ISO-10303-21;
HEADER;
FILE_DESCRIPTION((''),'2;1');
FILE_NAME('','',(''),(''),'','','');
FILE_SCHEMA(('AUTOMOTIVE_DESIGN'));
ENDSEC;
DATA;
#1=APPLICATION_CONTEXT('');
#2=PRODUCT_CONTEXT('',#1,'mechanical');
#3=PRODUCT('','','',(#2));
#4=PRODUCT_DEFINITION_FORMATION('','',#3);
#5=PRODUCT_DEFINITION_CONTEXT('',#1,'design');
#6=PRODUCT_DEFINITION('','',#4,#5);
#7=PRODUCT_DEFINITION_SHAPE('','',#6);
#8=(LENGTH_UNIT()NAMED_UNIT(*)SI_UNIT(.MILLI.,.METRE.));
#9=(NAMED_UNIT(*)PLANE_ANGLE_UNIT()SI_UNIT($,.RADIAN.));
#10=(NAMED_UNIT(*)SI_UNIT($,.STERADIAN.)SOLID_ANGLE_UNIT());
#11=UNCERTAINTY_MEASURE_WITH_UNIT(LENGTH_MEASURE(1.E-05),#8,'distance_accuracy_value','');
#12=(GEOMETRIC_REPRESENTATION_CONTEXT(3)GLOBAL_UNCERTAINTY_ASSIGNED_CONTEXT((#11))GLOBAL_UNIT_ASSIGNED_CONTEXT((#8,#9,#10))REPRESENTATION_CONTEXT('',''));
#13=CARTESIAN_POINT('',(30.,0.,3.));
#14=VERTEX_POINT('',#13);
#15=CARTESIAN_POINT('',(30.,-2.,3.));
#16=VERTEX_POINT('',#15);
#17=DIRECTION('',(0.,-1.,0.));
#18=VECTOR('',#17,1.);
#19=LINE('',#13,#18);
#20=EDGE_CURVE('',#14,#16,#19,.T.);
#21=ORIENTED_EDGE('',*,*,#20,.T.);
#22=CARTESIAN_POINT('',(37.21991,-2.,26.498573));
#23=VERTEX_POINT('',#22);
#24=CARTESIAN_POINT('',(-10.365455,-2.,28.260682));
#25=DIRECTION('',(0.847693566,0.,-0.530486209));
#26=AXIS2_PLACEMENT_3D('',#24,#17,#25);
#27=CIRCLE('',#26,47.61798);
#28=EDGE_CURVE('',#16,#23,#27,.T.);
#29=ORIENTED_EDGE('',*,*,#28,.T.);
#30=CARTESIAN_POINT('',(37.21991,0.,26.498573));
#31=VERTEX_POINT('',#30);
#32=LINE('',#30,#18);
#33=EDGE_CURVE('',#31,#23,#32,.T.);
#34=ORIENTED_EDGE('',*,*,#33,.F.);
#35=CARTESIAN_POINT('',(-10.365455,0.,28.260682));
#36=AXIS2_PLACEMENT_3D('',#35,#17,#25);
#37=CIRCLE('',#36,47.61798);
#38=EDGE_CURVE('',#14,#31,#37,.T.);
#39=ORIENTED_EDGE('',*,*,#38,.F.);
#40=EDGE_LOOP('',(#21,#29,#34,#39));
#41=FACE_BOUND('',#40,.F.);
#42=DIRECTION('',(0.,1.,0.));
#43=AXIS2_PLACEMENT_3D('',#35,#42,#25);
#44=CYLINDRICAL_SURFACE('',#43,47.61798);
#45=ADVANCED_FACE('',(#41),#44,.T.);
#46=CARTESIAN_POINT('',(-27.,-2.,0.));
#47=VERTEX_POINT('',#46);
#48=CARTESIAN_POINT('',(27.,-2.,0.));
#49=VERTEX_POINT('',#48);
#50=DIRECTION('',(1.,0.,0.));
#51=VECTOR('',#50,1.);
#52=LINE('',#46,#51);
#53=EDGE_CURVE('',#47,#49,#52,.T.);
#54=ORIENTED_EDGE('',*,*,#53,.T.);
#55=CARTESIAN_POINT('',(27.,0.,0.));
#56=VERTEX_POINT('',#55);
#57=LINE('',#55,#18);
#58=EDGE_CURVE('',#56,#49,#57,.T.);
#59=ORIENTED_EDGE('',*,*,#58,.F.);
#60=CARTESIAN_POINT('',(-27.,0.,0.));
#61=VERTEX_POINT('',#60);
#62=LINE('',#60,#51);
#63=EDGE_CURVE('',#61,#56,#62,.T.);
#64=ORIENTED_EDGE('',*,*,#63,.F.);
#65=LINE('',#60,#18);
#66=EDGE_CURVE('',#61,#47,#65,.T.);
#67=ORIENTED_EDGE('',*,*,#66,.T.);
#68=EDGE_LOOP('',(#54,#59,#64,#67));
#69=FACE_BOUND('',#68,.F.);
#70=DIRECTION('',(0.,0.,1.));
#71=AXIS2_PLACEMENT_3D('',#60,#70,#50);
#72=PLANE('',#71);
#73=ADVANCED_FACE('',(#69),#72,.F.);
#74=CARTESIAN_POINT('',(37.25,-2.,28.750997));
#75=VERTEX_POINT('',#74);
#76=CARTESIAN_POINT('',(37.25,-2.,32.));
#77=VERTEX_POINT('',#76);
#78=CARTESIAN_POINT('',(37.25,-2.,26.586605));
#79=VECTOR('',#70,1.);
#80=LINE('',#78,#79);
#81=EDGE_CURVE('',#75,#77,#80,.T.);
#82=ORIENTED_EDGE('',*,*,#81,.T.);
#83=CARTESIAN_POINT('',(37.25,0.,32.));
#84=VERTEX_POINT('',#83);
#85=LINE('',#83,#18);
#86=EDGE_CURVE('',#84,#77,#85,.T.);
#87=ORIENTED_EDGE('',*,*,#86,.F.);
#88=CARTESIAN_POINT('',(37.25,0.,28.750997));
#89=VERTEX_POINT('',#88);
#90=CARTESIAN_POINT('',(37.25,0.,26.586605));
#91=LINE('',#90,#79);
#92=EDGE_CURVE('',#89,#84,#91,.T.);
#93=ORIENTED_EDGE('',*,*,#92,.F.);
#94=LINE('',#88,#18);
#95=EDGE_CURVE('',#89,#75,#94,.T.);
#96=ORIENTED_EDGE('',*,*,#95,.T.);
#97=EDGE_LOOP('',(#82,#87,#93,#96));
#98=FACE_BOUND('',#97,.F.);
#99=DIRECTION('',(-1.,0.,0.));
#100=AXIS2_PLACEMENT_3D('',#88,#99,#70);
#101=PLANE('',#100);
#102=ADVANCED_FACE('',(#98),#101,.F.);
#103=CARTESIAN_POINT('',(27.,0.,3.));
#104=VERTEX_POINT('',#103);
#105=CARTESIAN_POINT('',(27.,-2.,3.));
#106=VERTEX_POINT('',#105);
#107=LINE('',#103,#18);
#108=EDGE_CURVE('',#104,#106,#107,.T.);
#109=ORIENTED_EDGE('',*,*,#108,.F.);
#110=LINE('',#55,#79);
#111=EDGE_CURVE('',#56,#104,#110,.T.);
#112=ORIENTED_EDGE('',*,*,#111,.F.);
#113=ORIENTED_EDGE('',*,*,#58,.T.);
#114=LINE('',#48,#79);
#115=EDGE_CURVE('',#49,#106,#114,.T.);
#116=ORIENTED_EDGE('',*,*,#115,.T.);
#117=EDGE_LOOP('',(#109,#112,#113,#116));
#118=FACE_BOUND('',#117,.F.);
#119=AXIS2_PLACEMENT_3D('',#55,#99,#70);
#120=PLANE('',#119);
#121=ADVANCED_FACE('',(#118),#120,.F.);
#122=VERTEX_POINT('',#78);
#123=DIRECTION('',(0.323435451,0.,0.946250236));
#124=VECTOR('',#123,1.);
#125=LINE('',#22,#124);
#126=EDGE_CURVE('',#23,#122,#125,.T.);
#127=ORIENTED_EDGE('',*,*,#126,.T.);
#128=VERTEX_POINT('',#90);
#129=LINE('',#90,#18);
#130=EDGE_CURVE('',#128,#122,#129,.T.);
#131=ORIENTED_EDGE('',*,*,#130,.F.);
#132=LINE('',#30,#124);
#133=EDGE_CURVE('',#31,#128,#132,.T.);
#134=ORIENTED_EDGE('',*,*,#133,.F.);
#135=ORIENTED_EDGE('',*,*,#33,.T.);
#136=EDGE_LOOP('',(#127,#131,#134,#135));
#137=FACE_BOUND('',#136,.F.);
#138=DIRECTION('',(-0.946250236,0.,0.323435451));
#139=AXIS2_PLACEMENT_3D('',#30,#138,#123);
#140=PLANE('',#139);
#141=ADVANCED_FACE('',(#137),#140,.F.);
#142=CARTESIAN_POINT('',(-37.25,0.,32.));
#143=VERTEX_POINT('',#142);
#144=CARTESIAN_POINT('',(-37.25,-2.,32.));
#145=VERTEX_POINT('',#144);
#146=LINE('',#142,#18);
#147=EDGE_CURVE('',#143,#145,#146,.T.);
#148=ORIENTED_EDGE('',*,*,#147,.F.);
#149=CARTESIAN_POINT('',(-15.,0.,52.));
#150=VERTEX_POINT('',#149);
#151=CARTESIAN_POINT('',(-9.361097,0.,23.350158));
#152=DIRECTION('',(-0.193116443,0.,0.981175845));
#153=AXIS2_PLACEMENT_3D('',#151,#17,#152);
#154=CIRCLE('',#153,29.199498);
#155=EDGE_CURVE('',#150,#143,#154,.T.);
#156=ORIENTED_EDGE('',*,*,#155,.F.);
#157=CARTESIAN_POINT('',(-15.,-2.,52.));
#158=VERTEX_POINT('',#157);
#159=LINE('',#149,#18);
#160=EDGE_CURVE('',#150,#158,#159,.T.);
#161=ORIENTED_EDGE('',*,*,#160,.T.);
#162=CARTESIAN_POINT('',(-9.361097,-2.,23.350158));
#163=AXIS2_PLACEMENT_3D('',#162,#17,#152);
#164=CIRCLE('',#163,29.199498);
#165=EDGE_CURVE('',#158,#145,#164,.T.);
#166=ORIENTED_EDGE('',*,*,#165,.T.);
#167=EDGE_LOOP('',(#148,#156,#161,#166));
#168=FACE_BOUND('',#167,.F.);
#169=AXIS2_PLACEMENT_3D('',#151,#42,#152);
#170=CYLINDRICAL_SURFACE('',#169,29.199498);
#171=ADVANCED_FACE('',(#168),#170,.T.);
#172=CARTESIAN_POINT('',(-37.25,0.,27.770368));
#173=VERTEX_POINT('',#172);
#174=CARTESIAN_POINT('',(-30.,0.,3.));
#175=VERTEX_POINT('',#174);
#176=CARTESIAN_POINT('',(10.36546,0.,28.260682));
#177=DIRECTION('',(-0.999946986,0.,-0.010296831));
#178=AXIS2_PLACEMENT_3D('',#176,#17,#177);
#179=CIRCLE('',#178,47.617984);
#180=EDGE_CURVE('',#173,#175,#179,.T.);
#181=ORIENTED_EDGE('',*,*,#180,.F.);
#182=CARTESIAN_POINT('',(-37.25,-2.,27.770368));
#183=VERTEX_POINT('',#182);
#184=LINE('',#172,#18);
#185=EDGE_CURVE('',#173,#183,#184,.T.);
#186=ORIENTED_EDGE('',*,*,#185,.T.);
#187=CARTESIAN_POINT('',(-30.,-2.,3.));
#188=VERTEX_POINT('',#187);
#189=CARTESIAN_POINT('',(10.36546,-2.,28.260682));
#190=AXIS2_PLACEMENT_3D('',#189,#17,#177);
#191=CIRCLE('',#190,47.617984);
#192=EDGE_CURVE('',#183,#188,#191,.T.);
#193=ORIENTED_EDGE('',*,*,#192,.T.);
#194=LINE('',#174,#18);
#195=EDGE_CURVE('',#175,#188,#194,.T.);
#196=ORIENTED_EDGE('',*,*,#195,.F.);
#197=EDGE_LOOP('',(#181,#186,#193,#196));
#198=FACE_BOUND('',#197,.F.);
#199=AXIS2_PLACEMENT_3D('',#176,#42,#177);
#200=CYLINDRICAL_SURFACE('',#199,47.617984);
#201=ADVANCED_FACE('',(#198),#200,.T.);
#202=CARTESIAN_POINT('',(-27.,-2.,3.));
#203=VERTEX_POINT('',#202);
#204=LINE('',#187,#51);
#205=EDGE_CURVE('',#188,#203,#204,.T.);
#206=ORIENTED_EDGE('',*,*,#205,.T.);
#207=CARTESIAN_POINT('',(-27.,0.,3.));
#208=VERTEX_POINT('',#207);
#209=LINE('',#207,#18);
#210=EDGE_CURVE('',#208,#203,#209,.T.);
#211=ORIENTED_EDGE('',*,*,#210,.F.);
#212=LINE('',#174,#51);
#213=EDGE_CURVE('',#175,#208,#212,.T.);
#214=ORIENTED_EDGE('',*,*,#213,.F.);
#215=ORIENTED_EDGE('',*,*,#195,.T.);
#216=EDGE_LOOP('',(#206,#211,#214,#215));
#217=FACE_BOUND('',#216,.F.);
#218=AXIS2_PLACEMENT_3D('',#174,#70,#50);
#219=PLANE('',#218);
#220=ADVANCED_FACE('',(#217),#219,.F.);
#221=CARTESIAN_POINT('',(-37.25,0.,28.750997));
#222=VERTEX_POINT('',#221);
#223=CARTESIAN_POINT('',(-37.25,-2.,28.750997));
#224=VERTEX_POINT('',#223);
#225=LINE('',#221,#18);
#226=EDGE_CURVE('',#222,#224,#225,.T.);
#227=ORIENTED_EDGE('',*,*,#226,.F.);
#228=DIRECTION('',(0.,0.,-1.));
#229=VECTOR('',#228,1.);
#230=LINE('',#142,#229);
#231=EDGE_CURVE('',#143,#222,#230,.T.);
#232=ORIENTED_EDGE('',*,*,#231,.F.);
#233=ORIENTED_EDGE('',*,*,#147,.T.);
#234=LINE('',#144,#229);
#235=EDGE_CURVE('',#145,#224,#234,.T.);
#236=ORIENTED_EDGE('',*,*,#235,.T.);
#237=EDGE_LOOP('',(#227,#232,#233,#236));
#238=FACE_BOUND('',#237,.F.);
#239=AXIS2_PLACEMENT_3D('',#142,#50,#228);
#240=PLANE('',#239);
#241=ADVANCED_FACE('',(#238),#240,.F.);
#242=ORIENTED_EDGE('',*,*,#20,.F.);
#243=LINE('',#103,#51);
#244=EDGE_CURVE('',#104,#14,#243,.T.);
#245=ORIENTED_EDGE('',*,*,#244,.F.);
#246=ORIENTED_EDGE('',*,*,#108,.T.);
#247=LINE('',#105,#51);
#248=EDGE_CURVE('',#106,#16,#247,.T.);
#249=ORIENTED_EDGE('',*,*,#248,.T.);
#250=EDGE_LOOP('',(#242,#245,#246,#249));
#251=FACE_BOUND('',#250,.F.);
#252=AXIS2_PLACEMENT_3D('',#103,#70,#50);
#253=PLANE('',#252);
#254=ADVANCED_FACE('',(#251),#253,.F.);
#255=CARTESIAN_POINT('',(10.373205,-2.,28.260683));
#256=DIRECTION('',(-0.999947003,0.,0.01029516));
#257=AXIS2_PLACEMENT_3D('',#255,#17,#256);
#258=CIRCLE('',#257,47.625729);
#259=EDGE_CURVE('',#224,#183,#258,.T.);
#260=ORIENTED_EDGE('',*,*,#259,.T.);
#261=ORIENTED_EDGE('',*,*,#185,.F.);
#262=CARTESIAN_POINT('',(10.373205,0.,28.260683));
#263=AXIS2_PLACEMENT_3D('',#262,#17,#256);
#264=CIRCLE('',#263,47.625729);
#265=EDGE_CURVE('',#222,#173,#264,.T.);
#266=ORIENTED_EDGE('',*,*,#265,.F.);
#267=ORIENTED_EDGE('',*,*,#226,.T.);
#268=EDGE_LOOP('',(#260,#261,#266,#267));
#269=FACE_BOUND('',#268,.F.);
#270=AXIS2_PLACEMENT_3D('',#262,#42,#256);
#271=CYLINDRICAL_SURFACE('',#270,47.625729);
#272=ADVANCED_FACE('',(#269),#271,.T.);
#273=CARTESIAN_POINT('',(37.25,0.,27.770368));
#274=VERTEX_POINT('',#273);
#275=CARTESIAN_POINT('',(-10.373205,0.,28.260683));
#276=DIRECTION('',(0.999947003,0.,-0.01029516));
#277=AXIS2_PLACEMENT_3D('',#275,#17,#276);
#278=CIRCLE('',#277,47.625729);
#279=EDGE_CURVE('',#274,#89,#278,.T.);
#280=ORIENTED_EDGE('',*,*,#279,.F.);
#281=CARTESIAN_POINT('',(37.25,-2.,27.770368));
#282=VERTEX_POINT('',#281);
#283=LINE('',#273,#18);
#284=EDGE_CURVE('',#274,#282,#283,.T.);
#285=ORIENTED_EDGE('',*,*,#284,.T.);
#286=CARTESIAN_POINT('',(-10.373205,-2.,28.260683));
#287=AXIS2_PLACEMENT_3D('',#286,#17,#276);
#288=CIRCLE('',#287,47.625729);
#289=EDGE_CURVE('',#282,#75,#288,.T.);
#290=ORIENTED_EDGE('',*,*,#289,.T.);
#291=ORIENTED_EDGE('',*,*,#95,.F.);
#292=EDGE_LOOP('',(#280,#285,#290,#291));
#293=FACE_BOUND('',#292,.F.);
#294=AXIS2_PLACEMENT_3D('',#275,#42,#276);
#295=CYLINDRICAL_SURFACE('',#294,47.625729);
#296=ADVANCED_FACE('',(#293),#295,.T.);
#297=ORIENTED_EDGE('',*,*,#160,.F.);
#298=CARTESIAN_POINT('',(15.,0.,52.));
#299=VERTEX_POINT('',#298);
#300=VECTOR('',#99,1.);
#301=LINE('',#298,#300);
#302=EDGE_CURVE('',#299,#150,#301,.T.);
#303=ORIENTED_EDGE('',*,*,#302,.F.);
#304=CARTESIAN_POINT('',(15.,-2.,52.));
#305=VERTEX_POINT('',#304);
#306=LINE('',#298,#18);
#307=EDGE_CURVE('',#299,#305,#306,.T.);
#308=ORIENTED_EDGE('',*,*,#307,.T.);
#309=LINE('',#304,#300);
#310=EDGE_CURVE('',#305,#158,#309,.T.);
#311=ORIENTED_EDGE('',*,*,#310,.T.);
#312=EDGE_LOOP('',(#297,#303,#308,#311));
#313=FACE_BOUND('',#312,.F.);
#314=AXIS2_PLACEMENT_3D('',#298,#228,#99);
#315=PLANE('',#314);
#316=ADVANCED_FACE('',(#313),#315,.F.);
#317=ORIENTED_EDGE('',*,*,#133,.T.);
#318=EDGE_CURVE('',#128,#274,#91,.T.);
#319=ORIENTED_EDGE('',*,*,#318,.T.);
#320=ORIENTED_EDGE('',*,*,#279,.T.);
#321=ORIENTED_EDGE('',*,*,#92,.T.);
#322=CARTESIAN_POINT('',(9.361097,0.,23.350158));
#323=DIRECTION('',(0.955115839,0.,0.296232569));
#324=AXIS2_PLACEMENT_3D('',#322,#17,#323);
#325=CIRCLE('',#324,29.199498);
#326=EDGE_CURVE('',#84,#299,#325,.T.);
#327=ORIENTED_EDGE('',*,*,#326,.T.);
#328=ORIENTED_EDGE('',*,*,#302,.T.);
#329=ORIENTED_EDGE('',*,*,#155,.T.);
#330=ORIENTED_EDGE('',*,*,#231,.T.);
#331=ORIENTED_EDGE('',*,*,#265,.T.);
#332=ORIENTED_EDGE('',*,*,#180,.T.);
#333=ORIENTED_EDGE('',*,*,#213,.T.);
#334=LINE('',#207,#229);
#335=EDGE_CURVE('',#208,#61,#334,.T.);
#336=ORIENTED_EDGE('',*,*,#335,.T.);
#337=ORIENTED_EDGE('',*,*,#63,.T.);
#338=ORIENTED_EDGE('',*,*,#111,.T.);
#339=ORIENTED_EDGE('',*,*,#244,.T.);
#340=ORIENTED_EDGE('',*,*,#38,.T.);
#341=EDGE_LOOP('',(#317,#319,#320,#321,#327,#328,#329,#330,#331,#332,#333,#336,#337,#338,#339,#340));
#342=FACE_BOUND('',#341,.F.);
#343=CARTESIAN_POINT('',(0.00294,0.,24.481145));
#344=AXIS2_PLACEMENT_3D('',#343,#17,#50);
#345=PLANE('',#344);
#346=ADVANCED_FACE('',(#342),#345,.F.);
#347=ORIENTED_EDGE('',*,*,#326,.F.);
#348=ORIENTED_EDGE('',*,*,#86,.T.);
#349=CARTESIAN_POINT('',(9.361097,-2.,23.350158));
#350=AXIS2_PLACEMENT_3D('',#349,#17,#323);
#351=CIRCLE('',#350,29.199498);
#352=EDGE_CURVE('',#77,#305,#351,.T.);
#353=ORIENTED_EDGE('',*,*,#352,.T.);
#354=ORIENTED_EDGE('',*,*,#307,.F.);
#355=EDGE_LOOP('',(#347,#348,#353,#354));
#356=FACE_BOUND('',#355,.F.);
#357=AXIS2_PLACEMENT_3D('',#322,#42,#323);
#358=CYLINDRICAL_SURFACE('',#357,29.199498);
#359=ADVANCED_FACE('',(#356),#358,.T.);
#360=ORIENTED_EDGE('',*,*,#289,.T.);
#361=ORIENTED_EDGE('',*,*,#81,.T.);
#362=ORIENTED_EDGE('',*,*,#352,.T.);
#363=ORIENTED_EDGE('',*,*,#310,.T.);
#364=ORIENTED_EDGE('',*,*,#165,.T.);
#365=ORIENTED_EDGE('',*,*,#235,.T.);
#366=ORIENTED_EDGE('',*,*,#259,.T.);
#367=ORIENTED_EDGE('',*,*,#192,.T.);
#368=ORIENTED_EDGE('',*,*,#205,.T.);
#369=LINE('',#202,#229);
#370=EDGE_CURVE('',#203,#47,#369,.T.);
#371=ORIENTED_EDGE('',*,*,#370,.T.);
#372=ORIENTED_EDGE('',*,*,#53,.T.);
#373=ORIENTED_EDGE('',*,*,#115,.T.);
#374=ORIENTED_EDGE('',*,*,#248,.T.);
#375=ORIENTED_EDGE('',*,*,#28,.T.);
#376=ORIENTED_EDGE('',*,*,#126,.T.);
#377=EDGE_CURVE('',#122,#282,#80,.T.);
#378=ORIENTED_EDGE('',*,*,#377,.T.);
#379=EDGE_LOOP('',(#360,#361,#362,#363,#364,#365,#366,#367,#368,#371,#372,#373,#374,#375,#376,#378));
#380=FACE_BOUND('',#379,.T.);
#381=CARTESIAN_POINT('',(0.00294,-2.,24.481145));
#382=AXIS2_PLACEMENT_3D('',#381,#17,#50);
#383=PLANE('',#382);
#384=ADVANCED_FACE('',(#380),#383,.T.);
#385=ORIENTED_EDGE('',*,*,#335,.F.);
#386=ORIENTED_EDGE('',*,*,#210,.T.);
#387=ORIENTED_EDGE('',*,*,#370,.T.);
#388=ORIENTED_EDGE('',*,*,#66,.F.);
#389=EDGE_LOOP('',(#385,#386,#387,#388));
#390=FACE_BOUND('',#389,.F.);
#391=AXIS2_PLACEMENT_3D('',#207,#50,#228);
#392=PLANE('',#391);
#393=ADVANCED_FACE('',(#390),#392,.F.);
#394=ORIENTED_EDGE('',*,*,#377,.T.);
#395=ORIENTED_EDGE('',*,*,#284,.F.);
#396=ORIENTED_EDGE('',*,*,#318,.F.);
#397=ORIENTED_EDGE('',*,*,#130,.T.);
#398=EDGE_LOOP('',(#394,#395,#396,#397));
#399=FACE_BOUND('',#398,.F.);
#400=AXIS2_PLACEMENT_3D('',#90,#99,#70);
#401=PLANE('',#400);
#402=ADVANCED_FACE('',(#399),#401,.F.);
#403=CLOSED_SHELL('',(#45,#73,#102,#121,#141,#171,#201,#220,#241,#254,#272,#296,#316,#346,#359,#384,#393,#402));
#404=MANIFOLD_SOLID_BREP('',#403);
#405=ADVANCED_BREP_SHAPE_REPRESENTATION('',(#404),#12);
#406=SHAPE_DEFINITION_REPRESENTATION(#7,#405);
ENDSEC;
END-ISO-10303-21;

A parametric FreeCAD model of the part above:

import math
import FreeCAD as App
import Part
import Sketcher
from FreeCAD import Vector
Q = App.Units.Quantity

doc = App.newDocument("Part")
body = doc.addObject("PartDesign::Body", "Body")

sketch1 = doc.addObject("Sketcher::SketchObject", "Sketch")
body.addObject(sketch1)
sketch1.AttachmentSupport = (doc.XZ_Plane, [""])
sketch1.MapMode = "FlatFace"
sketch1.addGeometry([
    Part.LineSegment(Vector(-27, 0, 0), Vector(27, 0, 0)),
    Part.LineSegment(Vector(27, 0, 0), Vector(27, 3, 0)),
    Part.LineSegment(Vector(27, 3, 0), Vector(30, 3, 0)),
    Part.ArcOfCircle(Part.Circle(Vector(-10.365455, 28.260682, 0), Vector(0, 0, 1), 47.61798), math.radians(-32.038312), math.radians(-2.120721)),
    Part.LineSegment(Vector(37.21991, 26.498573, 0), Vector(37.25, 26.586605, 0)),
    Part.LineSegment(Vector(37.25, 26.586605, 0), Vector(37.25, 27.770368, 0)),
    Part.ArcOfCircle(Part.Circle(Vector(-10.373205, 28.260683, 0), Vector(0, 0, 1), 47.625729), math.radians(-0.58988), math.radians(0.58988)),
    Part.LineSegment(Vector(37.25, 28.750997, 0), Vector(37.25, 32, 0)),
    Part.ArcOfCircle(Part.Circle(Vector(9.361097, 23.350158, 0), Vector(0, 0, 1), 29.199498), math.radians(17.231462), math.radians(78.865288)),
    Part.LineSegment(Vector(15, 52, 0), Vector(-15, 52, 0)),
    Part.ArcOfCircle(Part.Circle(Vector(-9.361097, 23.350158, 0), Vector(0, 0, 1), 29.199498), math.radians(101.134712), math.radians(162.768538)),
    Part.LineSegment(Vector(-37.25, 32, 0), Vector(-37.25, 28.750997, 0)),
    Part.ArcOfCircle(Part.Circle(Vector(10.373205, 28.260683, 0), Vector(0, 0, 1), 47.625729), math.radians(179.41012), math.radians(180.58988)),
    Part.ArcOfCircle(Part.Circle(Vector(10.36546, 28.260682, 0), Vector(0, 0, 1), 47.617984), math.radians(-179.410025), math.radians(-147.96169)),
    Part.LineSegment(Vector(-30, 3, 0), Vector(-27, 3, 0)),
    Part.LineSegment(Vector(-27, 3, 0), Vector(-27, 0, 0)),
], False)
sketch1.addConstraint([
    Sketcher.Constraint("Coincident", 0, 2, 1, 1),
    Sketcher.Constraint("Coincident", 1, 2, 2, 1),
    Sketcher.Constraint("Coincident", 2, 2, 3, 1),
    Sketcher.Constraint("Coincident", 3, 2, 4, 1),
    Sketcher.Constraint("Coincident", 4, 2, 5, 1),
    Sketcher.Constraint("Coincident", 5, 2, 6, 1),
    Sketcher.Constraint("Coincident", 6, 2, 7, 1),
    Sketcher.Constraint("Coincident", 7, 2, 8, 1),
    Sketcher.Constraint("Coincident", 8, 2, 9, 1),
    Sketcher.Constraint("Coincident", 9, 2, 10, 1),
    Sketcher.Constraint("Coincident", 10, 2, 11, 1),
    Sketcher.Constraint("Coincident", 11, 2, 12, 1),
    Sketcher.Constraint("Coincident", 12, 2, 13, 1),
    Sketcher.Constraint("Coincident", 13, 2, 14, 1),
    Sketcher.Constraint("Coincident", 14, 2, 15, 1),
    Sketcher.Constraint("Coincident", 15, 2, 0, 1),
    Sketcher.Constraint("Horizontal", 0),
    Sketcher.Constraint("Vertical", 1),
    Sketcher.Constraint("Horizontal", 2),
    Sketcher.Constraint("Vertical", 5),
    Sketcher.Constraint("Vertical", 7),
    Sketcher.Constraint("Horizontal", 9),
    Sketcher.Constraint("Vertical", 11),
    Sketcher.Constraint("Horizontal", 14),
    Sketcher.Constraint("Vertical", 15),
    Sketcher.Constraint("PointOnObject", 0, 2, -1),
    Sketcher.Constraint("DistanceX", 0, 1, 0, 2, Q("54 mm")),
    Sketcher.Constraint("DistanceX", 2, 1, 2, 2, Q("3 mm")),
    Sketcher.Constraint("DistanceX", 9, 2, 9, 1, Q("30 mm")),
    Sketcher.Constraint("DistanceX", 14, 1, 14, 2, Q("3 mm")),
    Sketcher.Constraint("DistanceY", 1, 1, 1, 2, Q("3 mm")),
    Sketcher.Constraint("DistanceY", 15, 2, 15, 1, Q("3 mm")),
    Sketcher.Constraint("DistanceX", -1, 1, 0, 2, Q("27 mm")),
    Sketcher.Constraint("DistanceY", -1, 1, 7, 2, Q("32 mm")),
    Sketcher.Constraint("DistanceX", -1, 1, 8, 2, Q("15 mm")),
    Sketcher.Constraint("DistanceY", -1, 1, 8, 2, Q("52 mm")),
    Sketcher.Constraint("DistanceY", -1, 1, 10, 2, Q("32 mm")),
    Sketcher.Constraint("Radius", 8, Q("29.199498 mm")),
    Sketcher.Constraint("Radius", 10, Q("29.199498 mm")),
    Sketcher.Constraint("DistanceX", -1, 1, 4, 2, Q("37.25 mm")),
    Sketcher.Constraint("DistanceX", -1, 1, 6, 2, Q("37.25 mm")),
    Sketcher.Constraint("DistanceX", 10, 2, -1, 1, Q("37.25 mm")),
    Sketcher.Constraint("DistanceX", 12, 2, -1, 1, Q("37.25 mm")),
    Sketcher.Constraint("Radius", 3, Q("47.61798 mm")),
    Sketcher.Constraint("Radius", 6, Q("47.625729 mm")),
    Sketcher.Constraint("Radius", 12, Q("47.625729 mm")),
    Sketcher.Constraint("Radius", 13, Q("47.617984 mm")),
    Sketcher.Constraint("DistanceX", 6, 3, 8, 3, Q("19.734302 mm")),
    Sketcher.Constraint("DistanceX", 10, 3, 12, 3, Q("19.734302 mm")),
    Sketcher.Constraint("DistanceY", 5, 1, 5, 2, Q("1.183763 mm")),
    Sketcher.Constraint("DistanceY", 7, 1, 7, 2, Q("3.249003 mm")),
    Sketcher.Constraint("DistanceY", 11, 2, 11, 1, Q("3.249003 mm")),
    Sketcher.Constraint("DistanceY", -1, 1, 3, 3, Q("28.260682 mm")),
    Sketcher.Constraint("DistanceX", -1, 1, 3, 2, Q("37.21991 mm")),
])
pad1 = doc.addObject("PartDesign::Pad", "Pad")
body.addObject(pad1)
pad1.Profile = sketch1
pad1.Length = 2

doc.recompute()
